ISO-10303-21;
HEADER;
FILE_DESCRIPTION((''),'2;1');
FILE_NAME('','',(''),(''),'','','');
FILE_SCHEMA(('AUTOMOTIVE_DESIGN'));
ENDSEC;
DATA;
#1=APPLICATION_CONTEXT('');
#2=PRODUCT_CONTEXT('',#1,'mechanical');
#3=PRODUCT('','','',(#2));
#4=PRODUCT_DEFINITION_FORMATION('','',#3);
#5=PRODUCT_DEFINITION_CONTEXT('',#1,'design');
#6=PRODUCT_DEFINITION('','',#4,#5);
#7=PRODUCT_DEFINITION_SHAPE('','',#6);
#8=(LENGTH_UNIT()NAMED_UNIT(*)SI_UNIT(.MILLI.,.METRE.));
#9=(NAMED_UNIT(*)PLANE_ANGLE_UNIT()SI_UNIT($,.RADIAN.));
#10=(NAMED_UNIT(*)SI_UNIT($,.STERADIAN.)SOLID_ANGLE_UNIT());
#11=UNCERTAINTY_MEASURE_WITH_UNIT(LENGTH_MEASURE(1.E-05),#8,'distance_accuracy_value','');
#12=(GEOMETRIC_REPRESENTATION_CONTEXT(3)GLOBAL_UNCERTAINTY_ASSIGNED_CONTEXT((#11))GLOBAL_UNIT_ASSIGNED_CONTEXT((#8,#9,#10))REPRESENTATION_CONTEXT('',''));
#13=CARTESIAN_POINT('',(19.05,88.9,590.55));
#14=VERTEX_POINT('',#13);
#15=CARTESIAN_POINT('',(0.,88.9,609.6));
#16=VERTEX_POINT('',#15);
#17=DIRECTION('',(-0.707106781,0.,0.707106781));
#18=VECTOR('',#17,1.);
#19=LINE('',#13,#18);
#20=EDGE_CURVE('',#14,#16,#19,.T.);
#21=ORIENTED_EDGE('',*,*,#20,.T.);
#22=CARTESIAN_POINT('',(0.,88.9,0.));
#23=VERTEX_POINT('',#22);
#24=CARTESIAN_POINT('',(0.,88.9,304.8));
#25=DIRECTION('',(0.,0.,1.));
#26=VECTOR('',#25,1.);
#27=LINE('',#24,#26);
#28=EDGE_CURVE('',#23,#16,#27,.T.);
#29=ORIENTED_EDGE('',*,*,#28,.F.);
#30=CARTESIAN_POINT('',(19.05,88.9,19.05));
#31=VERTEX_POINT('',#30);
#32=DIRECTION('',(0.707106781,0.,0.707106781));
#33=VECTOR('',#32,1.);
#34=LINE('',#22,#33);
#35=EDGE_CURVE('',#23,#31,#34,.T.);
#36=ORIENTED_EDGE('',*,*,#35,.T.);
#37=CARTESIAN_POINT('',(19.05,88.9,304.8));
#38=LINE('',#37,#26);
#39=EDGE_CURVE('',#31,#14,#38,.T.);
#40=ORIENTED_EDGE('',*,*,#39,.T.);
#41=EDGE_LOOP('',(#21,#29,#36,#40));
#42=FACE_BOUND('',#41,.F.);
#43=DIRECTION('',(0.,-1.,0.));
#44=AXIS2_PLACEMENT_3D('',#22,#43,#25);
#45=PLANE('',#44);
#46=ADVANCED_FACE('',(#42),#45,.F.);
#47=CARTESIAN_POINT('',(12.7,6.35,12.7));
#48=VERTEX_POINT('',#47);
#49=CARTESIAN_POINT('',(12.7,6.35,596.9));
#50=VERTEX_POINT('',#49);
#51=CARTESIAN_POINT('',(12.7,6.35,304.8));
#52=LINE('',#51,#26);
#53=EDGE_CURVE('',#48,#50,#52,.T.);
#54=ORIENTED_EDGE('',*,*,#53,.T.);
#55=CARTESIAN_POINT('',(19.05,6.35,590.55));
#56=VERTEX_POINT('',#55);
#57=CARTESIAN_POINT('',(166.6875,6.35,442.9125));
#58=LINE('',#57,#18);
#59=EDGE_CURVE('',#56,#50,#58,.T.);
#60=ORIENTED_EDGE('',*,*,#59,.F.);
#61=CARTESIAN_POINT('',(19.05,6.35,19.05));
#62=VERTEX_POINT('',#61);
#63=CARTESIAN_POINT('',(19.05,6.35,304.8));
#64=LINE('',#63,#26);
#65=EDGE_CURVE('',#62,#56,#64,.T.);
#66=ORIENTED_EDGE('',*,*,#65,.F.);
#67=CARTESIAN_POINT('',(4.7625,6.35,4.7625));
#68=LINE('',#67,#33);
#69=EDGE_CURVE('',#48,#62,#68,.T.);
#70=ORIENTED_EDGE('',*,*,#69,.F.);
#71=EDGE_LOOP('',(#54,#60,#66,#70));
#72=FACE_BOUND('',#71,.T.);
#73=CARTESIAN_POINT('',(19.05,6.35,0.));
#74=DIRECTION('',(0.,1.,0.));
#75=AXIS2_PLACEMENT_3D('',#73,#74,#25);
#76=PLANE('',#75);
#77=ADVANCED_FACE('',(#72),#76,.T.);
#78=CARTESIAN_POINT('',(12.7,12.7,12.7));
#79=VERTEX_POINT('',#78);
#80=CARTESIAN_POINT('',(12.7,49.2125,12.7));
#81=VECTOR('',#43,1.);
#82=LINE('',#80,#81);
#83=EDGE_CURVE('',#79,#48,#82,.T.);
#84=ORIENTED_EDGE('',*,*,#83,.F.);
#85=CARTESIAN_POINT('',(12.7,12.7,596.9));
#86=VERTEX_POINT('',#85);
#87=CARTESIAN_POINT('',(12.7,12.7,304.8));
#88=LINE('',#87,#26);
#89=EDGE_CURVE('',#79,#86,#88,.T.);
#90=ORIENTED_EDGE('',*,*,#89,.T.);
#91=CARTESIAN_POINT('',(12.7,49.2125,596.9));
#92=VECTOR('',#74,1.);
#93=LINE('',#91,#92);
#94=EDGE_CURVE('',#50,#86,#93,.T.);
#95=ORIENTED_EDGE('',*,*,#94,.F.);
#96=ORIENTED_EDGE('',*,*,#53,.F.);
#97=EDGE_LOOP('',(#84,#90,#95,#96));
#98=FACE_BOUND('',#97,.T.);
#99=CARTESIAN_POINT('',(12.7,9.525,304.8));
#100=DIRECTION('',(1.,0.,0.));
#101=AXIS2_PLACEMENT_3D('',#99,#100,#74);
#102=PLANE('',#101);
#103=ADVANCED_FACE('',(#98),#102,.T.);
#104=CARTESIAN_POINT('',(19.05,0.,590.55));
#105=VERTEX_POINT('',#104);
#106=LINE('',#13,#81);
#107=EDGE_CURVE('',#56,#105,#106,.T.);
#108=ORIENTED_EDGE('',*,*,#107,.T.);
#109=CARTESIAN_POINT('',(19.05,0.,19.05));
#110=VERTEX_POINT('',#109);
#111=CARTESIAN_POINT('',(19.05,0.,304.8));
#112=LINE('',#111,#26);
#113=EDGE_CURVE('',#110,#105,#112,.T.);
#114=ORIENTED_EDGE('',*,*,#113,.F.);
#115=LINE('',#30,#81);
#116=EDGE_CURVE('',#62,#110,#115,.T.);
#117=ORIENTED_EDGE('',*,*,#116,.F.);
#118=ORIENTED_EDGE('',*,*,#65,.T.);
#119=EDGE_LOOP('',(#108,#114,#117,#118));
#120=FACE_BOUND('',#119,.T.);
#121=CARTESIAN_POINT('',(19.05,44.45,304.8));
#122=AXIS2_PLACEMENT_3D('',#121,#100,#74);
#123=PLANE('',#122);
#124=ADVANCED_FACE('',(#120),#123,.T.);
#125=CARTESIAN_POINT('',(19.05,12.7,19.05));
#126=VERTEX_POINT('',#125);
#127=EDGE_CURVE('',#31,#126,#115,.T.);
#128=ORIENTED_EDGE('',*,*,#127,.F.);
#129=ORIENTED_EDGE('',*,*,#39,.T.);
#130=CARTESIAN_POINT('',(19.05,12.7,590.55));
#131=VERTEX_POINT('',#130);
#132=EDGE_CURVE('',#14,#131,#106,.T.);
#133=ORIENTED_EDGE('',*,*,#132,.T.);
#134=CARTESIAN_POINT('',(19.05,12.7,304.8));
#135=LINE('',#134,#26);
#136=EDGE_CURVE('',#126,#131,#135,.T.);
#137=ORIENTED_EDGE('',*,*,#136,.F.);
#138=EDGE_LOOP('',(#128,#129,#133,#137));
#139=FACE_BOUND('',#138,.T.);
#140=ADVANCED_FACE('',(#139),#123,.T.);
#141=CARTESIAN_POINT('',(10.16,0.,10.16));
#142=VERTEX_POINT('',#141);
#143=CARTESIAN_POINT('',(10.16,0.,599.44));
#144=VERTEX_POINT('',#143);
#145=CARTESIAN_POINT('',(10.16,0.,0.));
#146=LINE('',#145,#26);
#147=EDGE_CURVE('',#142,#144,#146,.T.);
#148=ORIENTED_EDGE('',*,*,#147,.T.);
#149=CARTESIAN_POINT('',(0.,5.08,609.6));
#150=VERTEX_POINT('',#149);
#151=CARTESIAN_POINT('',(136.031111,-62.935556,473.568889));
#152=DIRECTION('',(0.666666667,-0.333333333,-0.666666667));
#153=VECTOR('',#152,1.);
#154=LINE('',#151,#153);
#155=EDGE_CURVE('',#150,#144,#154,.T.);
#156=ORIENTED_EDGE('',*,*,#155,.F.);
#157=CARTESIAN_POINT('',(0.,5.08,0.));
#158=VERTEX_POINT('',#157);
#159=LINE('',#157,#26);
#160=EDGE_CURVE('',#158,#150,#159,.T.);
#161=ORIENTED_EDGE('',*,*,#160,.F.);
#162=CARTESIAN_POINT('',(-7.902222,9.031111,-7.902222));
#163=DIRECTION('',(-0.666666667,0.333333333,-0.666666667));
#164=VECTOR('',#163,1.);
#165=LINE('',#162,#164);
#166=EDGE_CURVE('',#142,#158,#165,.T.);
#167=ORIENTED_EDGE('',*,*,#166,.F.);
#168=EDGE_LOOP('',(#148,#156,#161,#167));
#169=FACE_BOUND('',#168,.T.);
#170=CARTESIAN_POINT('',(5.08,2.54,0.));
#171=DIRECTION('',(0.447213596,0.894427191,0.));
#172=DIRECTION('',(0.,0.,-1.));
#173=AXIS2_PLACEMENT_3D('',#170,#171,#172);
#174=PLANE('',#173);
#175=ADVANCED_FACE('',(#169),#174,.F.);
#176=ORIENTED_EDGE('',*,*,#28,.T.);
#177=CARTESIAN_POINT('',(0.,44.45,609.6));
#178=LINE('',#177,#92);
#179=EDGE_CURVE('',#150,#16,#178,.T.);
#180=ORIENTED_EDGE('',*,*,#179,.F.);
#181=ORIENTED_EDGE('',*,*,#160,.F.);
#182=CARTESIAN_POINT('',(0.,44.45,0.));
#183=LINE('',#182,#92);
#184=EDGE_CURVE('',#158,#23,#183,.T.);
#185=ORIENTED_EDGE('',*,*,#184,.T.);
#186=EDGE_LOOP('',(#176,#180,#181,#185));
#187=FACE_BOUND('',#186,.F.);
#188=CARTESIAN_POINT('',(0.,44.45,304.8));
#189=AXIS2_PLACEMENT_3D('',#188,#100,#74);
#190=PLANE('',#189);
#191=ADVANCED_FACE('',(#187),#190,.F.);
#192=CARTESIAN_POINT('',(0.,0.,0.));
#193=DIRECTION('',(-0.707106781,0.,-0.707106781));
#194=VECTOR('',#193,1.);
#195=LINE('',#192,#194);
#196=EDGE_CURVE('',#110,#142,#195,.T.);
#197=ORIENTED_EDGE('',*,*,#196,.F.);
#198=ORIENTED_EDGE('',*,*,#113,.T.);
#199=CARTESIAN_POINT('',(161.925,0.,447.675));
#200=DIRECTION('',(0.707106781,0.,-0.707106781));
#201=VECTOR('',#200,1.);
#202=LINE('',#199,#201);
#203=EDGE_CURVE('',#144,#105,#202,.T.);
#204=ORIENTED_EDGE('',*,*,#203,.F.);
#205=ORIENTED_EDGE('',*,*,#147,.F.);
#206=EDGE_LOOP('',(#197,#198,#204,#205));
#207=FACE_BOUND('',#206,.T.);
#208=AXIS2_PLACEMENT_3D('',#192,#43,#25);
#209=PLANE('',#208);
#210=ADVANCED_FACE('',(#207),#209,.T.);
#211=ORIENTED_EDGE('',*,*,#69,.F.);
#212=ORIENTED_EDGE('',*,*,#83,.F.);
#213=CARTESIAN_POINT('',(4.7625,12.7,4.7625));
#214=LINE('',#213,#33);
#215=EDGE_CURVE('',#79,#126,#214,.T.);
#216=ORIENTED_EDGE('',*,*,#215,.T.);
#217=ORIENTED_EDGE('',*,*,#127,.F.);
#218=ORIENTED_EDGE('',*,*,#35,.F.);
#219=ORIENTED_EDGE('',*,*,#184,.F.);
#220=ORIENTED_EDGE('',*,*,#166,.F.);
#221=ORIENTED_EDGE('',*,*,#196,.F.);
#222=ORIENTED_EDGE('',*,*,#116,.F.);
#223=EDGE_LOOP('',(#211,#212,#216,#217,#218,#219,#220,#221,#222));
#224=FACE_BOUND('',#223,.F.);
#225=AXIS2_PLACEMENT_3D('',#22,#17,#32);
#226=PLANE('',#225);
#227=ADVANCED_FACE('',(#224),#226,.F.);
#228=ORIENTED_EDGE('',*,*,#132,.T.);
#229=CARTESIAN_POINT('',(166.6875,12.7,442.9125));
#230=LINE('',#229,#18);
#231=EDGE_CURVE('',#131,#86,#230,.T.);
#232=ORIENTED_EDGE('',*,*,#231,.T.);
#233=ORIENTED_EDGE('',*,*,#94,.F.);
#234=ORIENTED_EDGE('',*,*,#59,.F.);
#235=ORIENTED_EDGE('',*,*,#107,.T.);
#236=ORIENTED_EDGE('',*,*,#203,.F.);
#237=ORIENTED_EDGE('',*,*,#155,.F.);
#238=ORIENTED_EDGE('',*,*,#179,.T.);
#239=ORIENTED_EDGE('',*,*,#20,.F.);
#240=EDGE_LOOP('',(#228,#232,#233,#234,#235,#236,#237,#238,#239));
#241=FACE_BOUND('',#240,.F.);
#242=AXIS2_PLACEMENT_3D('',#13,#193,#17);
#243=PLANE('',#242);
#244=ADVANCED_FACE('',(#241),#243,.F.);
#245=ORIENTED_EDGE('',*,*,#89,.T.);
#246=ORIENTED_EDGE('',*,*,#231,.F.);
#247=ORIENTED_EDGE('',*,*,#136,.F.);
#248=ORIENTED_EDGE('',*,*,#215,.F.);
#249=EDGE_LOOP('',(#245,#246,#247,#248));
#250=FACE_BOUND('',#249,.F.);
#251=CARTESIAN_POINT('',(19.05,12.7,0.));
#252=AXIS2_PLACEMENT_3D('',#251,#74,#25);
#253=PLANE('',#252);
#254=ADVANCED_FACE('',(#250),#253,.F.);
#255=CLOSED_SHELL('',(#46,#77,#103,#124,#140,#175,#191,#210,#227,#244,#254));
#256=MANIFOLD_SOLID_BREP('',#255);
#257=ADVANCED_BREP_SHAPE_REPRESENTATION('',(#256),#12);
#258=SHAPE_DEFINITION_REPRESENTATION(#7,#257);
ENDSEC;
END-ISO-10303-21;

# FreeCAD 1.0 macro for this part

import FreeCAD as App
import Part
import Sketcher
from FreeCAD import Vector
Q = App.Units.Quantity


def edges_at(feature, points):
    """Names of the edges that pass closest to the given points."""
    edges = feature.Shape.Edges
    near = lambda p: min(range(len(edges)), key=lambda i: edges[i].distToShape(Part.Vertex(*p))[0])
    return sorted({f"Edge{near(p) + 1}" for p in points})

doc = App.newDocument("Part")
body = doc.addObject("PartDesign::Body", "Body")

sketch1 = doc.addObject("Sketcher::SketchObject", "Sketch")
body.addObject(sketch1)
sketch1.AttachmentSupport = (doc.YZ_Plane, [""])
sketch1.MapMode = "FlatFace"
sketch1.addGeometry([
    Part.LineSegment(Vector(0, 609.6, 0), Vector(0, 0, 0)),
    Part.LineSegment(Vector(0, 0, 0), Vector(88.9, 0, 0)),
    Part.LineSegment(Vector(88.9, 0, 0), Vector(88.9, 609.6, 0)),
    Part.LineSegment(Vector(88.9, 609.6, 0), Vector(0, 609.6, 0)),
], False)
sketch1.addConstraint([
    Sketcher.Constraint("Coincident", 0, 2, 1, 1),
    Sketcher.Constraint("Coincident", 1, 2, 2, 1),
    Sketcher.Constraint("Coincident", 2, 2, 3, 1),
    Sketcher.Constraint("Coincident", 3, 2, 0, 1),
    Sketcher.Constraint("Vertical", 0),
    Sketcher.Constraint("Horizontal", 1),
    Sketcher.Constraint("Vertical", 2),
    Sketcher.Constraint("Horizontal", 3),
    Sketcher.Constraint("Coincident", 0, 2, -1, 1),
    Sketcher.Constraint("DistanceY", 0, 2, 0, 1, Q("24 in")),
    Sketcher.Constraint("DistanceX", 1, 1, 1, 2, Q("3.5 in")),
])
pad1 = doc.addObject("PartDesign::Pad", "Pad")
body.addObject(pad1)
pad1.Profile = sketch1
pad1.Length = Q("0.75 in")

sketch2 = doc.addObject("Sketcher::SketchObject", "Sketch001")
body.addObject(sketch2)
sketch2.AttachmentSupport = (doc.YZ_Plane, [""])
sketch2.MapMode = "FlatFace"
sketch2.AttachmentOffset = App.Placement(Vector(0, 0, 0.75 * 25.4), App.Rotation())
sketch2.addGeometry([
    Part.LineSegment(Vector(6.35, 609.6, 0), Vector(6.35, 0, 0)),
    Part.LineSegment(Vector(6.35, 0, 0), Vector(12.7, 0, 0)),
    Part.LineSegment(Vector(12.7, 0, 0), Vector(12.7, 609.6, 0)),
    Part.LineSegment(Vector(12.7, 609.6, 0), Vector(6.35, 609.6, 0)),
], False)
sketch2.addConstraint([
    Sketcher.Constraint("Coincident", 0, 2, 1, 1),
    Sketcher.Constraint("Coincident", 1, 2, 2, 1),
    Sketcher.Constraint("Coincident", 2, 2, 3, 1),
    Sketcher.Constraint("Coincident", 3, 2, 0, 1),
    Sketcher.Constraint("Vertical", 0),
    Sketcher.Constraint("Horizontal", 1),
    Sketcher.Constraint("Vertical", 2),
    Sketcher.Constraint("Horizontal", 3),
    Sketcher.Constraint("PointOnObject", 0, 2, -1),
    Sketcher.Constraint("DistanceY", 0, 2, 0, 1, Q("24 in")),
    Sketcher.Constraint("DistanceX", 1, 1, 1, 2, Q("0.25 in")),
    Sketcher.Constraint("DistanceX", -1, 1, 1, 2, Q("0.5 in")),
])
pocket1 = doc.addObject("PartDesign::Pocket", "Pocket")
body.addObject(pocket1)
pocket1.Profile = sketch2
pocket1.Length = Q("0.25 in")
doc.recompute()

chamfer = doc.addObject("PartDesign::Chamfer", "Chamfer")
body.addObject(chamfer)
chamfer.Base = (pocket1, edges_at(pocket1, [(0, 0, 304.8)]))
chamfer.ChamferType = "Two distances"
chamfer.Size = Q("0.4 in")
chamfer.Size2 = Q("0.2 in")

sketch3 = doc.addObject("Sketcher::SketchObject", "Sketch002")
body.addObject(sketch3)
sketch3.AttachmentSupport = (doc.XZ_Plane, [""])
sketch3.MapMode = "FlatFace"
sketch3.AttachmentOffset = App.Placement(Vector(0, 0, -3.5 * 25.4), App.Rotation())
sketch3.addGeometry([
    Part.LineSegment(Vector(19.05, 590.55, 0), Vector(0, 609.6, 0)),
    Part.LineSegment(Vector(0, 609.6, 0), Vector(19.05, 609.6, 0)),
    Part.LineSegment(Vector(19.05, 609.6, 0), Vector(19.05, 590.55, 0)),
    Part.LineSegment(Vector(19.05, 0, 0), Vector(0, 0, 0)),
    Part.LineSegment(Vector(0, 0, 0), Vector(19.05, 19.05, 0)),
    Part.LineSegment(Vector(19.05, 19.05, 0), Vector(19.05, 0, 0)),
], False)
sketch3.addConstraint([
    Sketcher.Constraint("Coincident", 0, 2, 1, 1),
    Sketcher.Constraint("Coincident", 1, 2, 2, 1),
    Sketcher.Constraint("Coincident", 2, 2, 0, 1),
    Sketcher.Constraint("Coincident", 3, 2, 4, 1),
    Sketcher.Constraint("Coincident", 4, 2, 5, 1),
    Sketcher.Constraint("Coincident", 5, 2, 3, 1),
    Sketcher.Constraint("Horizontal", 1),
    Sketcher.Constraint("Vertical", 2),
    Sketcher.Constraint("Horizontal", 3),
    Sketcher.Constraint("Vertical", 5),
    Sketcher.Constraint("Coincident", 3, 2, -1, 1),
    Sketcher.Constraint("PointOnObject", 0, 2, -2),
    Sketcher.Constraint("Perpendicular", 0, 4),
    Sketcher.Constraint("Vertical", 2, 2, 4, 2),
    Sketcher.Constraint("Equal", 3, 2),
    Sketcher.Constraint("DistanceY", -1, 1, 0, 2, Q("24 in")),
    Sketcher.Constraint("DistanceX", 1, 1, 1, 2, Q("0.75 in")),
])
pocket2 = doc.addObject("PartDesign::Pocket", "Pocket001")
body.addObject(pocket2)
pocket2.Profile = sketch3
pocket2.Type = "ThroughAll"
pocket2.Reversed = True

doc.recompute()
